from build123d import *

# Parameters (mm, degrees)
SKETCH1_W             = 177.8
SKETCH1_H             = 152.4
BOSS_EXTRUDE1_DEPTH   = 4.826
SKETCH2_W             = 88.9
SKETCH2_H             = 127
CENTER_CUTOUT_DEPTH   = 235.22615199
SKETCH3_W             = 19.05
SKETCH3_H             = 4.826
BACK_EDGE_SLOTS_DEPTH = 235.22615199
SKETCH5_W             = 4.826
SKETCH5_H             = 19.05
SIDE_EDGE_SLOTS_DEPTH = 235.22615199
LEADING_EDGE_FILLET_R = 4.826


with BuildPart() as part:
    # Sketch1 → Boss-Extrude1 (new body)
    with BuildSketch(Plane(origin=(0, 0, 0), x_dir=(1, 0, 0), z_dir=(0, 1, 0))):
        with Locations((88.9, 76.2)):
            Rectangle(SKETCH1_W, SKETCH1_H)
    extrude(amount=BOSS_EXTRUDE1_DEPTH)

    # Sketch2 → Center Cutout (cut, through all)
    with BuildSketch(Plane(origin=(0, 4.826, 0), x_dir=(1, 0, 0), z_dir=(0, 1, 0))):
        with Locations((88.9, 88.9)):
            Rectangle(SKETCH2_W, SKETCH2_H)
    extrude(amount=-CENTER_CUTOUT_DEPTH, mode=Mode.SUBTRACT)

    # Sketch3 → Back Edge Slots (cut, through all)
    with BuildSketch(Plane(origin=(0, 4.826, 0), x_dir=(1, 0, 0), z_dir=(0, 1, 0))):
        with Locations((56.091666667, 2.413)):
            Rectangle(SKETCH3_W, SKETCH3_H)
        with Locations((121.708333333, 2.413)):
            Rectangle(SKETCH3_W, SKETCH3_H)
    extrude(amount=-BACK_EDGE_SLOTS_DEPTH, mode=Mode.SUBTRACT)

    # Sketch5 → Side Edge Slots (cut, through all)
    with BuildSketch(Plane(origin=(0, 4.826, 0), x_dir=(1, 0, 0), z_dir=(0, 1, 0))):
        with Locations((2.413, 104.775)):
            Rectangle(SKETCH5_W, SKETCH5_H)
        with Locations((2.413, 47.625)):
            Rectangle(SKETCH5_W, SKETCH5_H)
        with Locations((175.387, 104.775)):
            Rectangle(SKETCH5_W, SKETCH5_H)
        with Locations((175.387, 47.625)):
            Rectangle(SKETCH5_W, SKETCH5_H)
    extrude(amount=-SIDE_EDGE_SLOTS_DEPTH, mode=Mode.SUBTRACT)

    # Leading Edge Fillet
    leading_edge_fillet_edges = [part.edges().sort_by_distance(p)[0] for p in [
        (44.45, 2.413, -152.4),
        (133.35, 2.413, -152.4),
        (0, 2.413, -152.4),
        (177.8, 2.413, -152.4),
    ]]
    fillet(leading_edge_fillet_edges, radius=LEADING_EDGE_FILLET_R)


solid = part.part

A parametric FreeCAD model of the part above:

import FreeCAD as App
import Part
import Sketcher
Q = App.Units.Quantity


def edges_at(feature, points):
    """Names of the edges that pass closest to the given points."""
    edges = feature.Shape.Edges
    near = lambda p: min(range(len(edges)), key=lambda i: edges[i].distToShape(Part.Vertex(*p))[0])
    return sorted({f"Edge{near(p) + 1}" for p in points})


def add_polygon(sketch, points):
    """Adds a closed chain of lines whose ends are joined by coincident constraints."""
    first, n = sketch.GeometryCount, len(points)
    for a, b in zip(points, points[1:] + points[:1]):
        sketch.addGeometry(Part.LineSegment(App.Vector(*a, 0), App.Vector(*b, 0)), False)
    for i in range(n):
        sketch.addConstraint(Sketcher.Constraint("Coincident", first + i, 2, first + (i + 1) % n, 1))

doc = App.newDocument("Part")
body = doc.addObject("PartDesign::Body", "Body")

sketch1 = doc.addObject("Sketcher::SketchObject", "Sketch")
body.addObject(sketch1)
sketch1.AttachmentSupport = (doc.XZ_Plane, [""])
sketch1.MapMode = "FlatFace"
add_polygon(sketch1, [(0, -152), (0, 0), (178, 0), (178, -152)])
sketch1.addConstraint([
    Sketcher.Constraint("Vertical", 0),
    Sketcher.Constraint("Horizontal", 1),
    Sketcher.Constraint("Vertical", 2),
    Sketcher.Constraint("Horizontal", 3),
    Sketcher.Constraint("Coincident", 0, 2, -1, 1),
    Sketcher.Constraint("DistanceX", 1, 1, 1, 2, Q("7 in")),
    Sketcher.Constraint("DistanceY", 0, 1, 0, 2, Q("6 in")),
])
pad1 = doc.addObject("PartDesign::Pad", "Pad")
body.addObject(pad1)
pad1.Profile = sketch1
pad1.Length = Q("0.19 in")
pad1.Reversed = True

sketch2 = doc.addObject("Sketcher::SketchObject", "Sketch001")
body.addObject(sketch2)
sketch2.AttachmentSupport = (doc.XZ_Plane, [""])
sketch2.MapMode = "FlatFace"
sketch2.AttachmentOffset = App.Placement(App.Vector(0, 0, -0.19 * 25.4), App.Rotation())
add_polygon(sketch2, [(44, -152), (44, -25), (133, -25), (133, -152)])
sketch2.addConstraint([
    Sketcher.Constraint("Vertical", 0),
    Sketcher.Constraint("Horizontal", 1),
    Sketcher.Constraint("Vertical", 2),
    Sketcher.Constraint("Horizontal", 3),
    Sketcher.Constraint("DistanceY", 0, 1, 0, 2, Q("5 in")),
    Sketcher.Constraint("DistanceX", 1, 1, 1, 2, Q("3.5 in")),
    Sketcher.Constraint("DistanceY", 0, 2, -1, 1, Q("1 in")),
    Sketcher.Constraint("DistanceX", -1, 1, 0, 2, Q("1.75 in")),
])
pocket1 = doc.addObject("PartDesign::Pocket", "Pocket")
body.addObject(pocket1)
pocket1.Profile = sketch2
pocket1.Type = "ThroughAll"
pocket1.Reversed = True

sketch3 = doc.addObject("Sketcher::SketchObject", "Sketch002")
body.addObject(sketch3)
sketch3.AttachmentSupport = (doc.XZ_Plane, [""])
sketch3.MapMode = "FlatFace"
sketch3.AttachmentOffset = App.Placement(App.Vector(0, 0, -0.19 * 25.4), App.Rotation())
add_polygon(sketch3, [(46.6, -4.8), (46.6, 0), (65.6, 0), (65.6, -4.8)])
add_polygon(sketch3, [(112.2, -4.8), (112.2, 0), (131.2, 0), (131.2, -4.8)])
sketch3.addConstraint([
    Sketcher.Constraint("Vertical", 0),
    Sketcher.Constraint("Horizontal", 1),
    Sketcher.Constraint("Vertical", 2),
    Sketcher.Constraint("Horizontal", 3),
    Sketcher.Constraint("Vertical", 4),
    Sketcher.Constraint("Horizontal", 5),
    Sketcher.Constraint("Vertical", 6),
    Sketcher.Constraint("Horizontal", 7),
    Sketcher.Constraint("PointOnObject", 0, 2, -1),
    Sketcher.Constraint("PointOnObject", 4, 2, -1),
    Sketcher.Constraint("Horizontal", 3, 2, 6, 2),
    Sketcher.Constraint("Equal", 3, 5),
    Sketcher.Constraint("DistanceX", 1, 1, 1, 2, Q("0.75 in")),
    Sketcher.Constraint("DistanceY", 0, 1, 0, 2, Q("0.19 in")),
    Sketcher.Constraint("DistanceX", -1, 1, 0, 2, Q("46.566667 mm")),
    Sketcher.Constraint("DistanceX", -1, 1, 4, 2, Q("112.183333 mm")),
])
pocket2 = doc.addObject("PartDesign::Pocket", "Pocket001")
body.addObject(pocket2)
pocket2.Profile = sketch3
pocket2.Type = "ThroughAll"
pocket2.Reversed = True

sketch4 = doc.addObject("Sketcher::SketchObject", "Sketch003")
body.addObject(sketch4)
sketch4.AttachmentSupport = (doc.XZ_Plane, [""])
sketch4.MapMode = "FlatFace"
sketch4.AttachmentOffset = App.Placement(App.Vector(0, 0, -0.19 * 25.4), App.Rotation())
add_polygon(sketch4, [(0, -114.3), (0, -95.2), (4.8, -95.2), (4.8, -114.3)])
add_polygon(sketch4, [(0, -57.1), (0, -38.1), (4.8, -38.1), (4.8, -57.1)])
add_polygon(sketch4, [(173, -114.3), (173, -95.2), (177.8, -95.2), (177.8, -114.3)])
add_polygon(sketch4, [(173, -57.1), (173, -38.1), (177.8, -38.1), (177.8, -57.1)])
sketch4.addConstraint([
    Sketcher.Constraint("Vertical", 0),
    Sketcher.Constraint("Horizontal", 1),
    Sketcher.Constraint("Vertical", 2),
    Sketcher.Constraint("Horizontal", 3),
    Sketcher.Constraint("Vertical", 4),
    Sketcher.Constraint("Horizontal", 5),
    Sketcher.Constraint("Vertical", 6),
    Sketcher.Constraint("Horizontal", 7),
    Sketcher.Constraint("Vertical", 8),
    Sketcher.Constraint("Horizontal", 9),
    Sketcher.Constraint("Vertical", 10),
    Sketcher.Constraint("Horizontal", 11),
    Sketcher.Constraint("Vertical", 12),
    Sketcher.Constraint("Horizontal", 13),
    Sketcher.Constraint("Vertical", 14),
    Sketcher.Constraint("Horizontal", 15),
    Sketcher.Constraint("PointOnObject", 0, 2, -2),
    Sketcher.Constraint("PointOnObject", 4, 2, -2),
    Sketcher.Constraint("Horizontal", 1, 2, 8, 2),
    Sketcher.Constraint("Horizontal", 3, 2, 10, 2),
    Sketcher.Constraint("Horizontal", 5, 2, 12, 2),
    Sketcher.Constraint("Horizontal", 7, 2, 14, 2),
    Sketcher.Constraint("Vertical", 2, 2, 5, 2),
    Sketcher.Constraint("Vertical", 11, 2, 12, 2),
    Sketcher.Constraint("Vertical", 10, 2, 13, 2),
    Sketcher.Constraint("Equal", 7, 9),
    Sketcher.Constraint("Equal", 2, 4),
    Sketcher.Constraint("DistanceX", -1, 1, 9, 2, Q("7 in")),
    Sketcher.Constraint("DistanceY", 3, 2, 4, 2, Q("3 in")),
    Sketcher.Constraint("DistanceX", 1, 1, 1, 2, Q("0.19 in")),
    Sketcher.Constraint("DistanceY", 0, 1, 0, 2, Q("0.75 in")),
    Sketcher.Constraint("DistanceY", 2, 2, -1, 1, Q("4.5 in")),
])
pocket3 = doc.addObject("PartDesign::Pocket", "Pocket002")
body.addObject(pocket3)
pocket3.Profile = sketch4
pocket3.Type = "ThroughAll"
pocket3.Reversed = True
doc.recompute()

fillet = doc.addObject("PartDesign::Fillet", "Fillet")
body.addObject(fillet)
fillet.Base = (pocket3, edges_at(pocket3, [
    (44.45, 2.413, -152.4),
    (133.35, 2.413, -152.4),
    (0, 2.413, -152.4),
    (177.8, 2.413, -152.4),
]))
fillet.Radius = Q("0.19 in")

doc.recompute()
